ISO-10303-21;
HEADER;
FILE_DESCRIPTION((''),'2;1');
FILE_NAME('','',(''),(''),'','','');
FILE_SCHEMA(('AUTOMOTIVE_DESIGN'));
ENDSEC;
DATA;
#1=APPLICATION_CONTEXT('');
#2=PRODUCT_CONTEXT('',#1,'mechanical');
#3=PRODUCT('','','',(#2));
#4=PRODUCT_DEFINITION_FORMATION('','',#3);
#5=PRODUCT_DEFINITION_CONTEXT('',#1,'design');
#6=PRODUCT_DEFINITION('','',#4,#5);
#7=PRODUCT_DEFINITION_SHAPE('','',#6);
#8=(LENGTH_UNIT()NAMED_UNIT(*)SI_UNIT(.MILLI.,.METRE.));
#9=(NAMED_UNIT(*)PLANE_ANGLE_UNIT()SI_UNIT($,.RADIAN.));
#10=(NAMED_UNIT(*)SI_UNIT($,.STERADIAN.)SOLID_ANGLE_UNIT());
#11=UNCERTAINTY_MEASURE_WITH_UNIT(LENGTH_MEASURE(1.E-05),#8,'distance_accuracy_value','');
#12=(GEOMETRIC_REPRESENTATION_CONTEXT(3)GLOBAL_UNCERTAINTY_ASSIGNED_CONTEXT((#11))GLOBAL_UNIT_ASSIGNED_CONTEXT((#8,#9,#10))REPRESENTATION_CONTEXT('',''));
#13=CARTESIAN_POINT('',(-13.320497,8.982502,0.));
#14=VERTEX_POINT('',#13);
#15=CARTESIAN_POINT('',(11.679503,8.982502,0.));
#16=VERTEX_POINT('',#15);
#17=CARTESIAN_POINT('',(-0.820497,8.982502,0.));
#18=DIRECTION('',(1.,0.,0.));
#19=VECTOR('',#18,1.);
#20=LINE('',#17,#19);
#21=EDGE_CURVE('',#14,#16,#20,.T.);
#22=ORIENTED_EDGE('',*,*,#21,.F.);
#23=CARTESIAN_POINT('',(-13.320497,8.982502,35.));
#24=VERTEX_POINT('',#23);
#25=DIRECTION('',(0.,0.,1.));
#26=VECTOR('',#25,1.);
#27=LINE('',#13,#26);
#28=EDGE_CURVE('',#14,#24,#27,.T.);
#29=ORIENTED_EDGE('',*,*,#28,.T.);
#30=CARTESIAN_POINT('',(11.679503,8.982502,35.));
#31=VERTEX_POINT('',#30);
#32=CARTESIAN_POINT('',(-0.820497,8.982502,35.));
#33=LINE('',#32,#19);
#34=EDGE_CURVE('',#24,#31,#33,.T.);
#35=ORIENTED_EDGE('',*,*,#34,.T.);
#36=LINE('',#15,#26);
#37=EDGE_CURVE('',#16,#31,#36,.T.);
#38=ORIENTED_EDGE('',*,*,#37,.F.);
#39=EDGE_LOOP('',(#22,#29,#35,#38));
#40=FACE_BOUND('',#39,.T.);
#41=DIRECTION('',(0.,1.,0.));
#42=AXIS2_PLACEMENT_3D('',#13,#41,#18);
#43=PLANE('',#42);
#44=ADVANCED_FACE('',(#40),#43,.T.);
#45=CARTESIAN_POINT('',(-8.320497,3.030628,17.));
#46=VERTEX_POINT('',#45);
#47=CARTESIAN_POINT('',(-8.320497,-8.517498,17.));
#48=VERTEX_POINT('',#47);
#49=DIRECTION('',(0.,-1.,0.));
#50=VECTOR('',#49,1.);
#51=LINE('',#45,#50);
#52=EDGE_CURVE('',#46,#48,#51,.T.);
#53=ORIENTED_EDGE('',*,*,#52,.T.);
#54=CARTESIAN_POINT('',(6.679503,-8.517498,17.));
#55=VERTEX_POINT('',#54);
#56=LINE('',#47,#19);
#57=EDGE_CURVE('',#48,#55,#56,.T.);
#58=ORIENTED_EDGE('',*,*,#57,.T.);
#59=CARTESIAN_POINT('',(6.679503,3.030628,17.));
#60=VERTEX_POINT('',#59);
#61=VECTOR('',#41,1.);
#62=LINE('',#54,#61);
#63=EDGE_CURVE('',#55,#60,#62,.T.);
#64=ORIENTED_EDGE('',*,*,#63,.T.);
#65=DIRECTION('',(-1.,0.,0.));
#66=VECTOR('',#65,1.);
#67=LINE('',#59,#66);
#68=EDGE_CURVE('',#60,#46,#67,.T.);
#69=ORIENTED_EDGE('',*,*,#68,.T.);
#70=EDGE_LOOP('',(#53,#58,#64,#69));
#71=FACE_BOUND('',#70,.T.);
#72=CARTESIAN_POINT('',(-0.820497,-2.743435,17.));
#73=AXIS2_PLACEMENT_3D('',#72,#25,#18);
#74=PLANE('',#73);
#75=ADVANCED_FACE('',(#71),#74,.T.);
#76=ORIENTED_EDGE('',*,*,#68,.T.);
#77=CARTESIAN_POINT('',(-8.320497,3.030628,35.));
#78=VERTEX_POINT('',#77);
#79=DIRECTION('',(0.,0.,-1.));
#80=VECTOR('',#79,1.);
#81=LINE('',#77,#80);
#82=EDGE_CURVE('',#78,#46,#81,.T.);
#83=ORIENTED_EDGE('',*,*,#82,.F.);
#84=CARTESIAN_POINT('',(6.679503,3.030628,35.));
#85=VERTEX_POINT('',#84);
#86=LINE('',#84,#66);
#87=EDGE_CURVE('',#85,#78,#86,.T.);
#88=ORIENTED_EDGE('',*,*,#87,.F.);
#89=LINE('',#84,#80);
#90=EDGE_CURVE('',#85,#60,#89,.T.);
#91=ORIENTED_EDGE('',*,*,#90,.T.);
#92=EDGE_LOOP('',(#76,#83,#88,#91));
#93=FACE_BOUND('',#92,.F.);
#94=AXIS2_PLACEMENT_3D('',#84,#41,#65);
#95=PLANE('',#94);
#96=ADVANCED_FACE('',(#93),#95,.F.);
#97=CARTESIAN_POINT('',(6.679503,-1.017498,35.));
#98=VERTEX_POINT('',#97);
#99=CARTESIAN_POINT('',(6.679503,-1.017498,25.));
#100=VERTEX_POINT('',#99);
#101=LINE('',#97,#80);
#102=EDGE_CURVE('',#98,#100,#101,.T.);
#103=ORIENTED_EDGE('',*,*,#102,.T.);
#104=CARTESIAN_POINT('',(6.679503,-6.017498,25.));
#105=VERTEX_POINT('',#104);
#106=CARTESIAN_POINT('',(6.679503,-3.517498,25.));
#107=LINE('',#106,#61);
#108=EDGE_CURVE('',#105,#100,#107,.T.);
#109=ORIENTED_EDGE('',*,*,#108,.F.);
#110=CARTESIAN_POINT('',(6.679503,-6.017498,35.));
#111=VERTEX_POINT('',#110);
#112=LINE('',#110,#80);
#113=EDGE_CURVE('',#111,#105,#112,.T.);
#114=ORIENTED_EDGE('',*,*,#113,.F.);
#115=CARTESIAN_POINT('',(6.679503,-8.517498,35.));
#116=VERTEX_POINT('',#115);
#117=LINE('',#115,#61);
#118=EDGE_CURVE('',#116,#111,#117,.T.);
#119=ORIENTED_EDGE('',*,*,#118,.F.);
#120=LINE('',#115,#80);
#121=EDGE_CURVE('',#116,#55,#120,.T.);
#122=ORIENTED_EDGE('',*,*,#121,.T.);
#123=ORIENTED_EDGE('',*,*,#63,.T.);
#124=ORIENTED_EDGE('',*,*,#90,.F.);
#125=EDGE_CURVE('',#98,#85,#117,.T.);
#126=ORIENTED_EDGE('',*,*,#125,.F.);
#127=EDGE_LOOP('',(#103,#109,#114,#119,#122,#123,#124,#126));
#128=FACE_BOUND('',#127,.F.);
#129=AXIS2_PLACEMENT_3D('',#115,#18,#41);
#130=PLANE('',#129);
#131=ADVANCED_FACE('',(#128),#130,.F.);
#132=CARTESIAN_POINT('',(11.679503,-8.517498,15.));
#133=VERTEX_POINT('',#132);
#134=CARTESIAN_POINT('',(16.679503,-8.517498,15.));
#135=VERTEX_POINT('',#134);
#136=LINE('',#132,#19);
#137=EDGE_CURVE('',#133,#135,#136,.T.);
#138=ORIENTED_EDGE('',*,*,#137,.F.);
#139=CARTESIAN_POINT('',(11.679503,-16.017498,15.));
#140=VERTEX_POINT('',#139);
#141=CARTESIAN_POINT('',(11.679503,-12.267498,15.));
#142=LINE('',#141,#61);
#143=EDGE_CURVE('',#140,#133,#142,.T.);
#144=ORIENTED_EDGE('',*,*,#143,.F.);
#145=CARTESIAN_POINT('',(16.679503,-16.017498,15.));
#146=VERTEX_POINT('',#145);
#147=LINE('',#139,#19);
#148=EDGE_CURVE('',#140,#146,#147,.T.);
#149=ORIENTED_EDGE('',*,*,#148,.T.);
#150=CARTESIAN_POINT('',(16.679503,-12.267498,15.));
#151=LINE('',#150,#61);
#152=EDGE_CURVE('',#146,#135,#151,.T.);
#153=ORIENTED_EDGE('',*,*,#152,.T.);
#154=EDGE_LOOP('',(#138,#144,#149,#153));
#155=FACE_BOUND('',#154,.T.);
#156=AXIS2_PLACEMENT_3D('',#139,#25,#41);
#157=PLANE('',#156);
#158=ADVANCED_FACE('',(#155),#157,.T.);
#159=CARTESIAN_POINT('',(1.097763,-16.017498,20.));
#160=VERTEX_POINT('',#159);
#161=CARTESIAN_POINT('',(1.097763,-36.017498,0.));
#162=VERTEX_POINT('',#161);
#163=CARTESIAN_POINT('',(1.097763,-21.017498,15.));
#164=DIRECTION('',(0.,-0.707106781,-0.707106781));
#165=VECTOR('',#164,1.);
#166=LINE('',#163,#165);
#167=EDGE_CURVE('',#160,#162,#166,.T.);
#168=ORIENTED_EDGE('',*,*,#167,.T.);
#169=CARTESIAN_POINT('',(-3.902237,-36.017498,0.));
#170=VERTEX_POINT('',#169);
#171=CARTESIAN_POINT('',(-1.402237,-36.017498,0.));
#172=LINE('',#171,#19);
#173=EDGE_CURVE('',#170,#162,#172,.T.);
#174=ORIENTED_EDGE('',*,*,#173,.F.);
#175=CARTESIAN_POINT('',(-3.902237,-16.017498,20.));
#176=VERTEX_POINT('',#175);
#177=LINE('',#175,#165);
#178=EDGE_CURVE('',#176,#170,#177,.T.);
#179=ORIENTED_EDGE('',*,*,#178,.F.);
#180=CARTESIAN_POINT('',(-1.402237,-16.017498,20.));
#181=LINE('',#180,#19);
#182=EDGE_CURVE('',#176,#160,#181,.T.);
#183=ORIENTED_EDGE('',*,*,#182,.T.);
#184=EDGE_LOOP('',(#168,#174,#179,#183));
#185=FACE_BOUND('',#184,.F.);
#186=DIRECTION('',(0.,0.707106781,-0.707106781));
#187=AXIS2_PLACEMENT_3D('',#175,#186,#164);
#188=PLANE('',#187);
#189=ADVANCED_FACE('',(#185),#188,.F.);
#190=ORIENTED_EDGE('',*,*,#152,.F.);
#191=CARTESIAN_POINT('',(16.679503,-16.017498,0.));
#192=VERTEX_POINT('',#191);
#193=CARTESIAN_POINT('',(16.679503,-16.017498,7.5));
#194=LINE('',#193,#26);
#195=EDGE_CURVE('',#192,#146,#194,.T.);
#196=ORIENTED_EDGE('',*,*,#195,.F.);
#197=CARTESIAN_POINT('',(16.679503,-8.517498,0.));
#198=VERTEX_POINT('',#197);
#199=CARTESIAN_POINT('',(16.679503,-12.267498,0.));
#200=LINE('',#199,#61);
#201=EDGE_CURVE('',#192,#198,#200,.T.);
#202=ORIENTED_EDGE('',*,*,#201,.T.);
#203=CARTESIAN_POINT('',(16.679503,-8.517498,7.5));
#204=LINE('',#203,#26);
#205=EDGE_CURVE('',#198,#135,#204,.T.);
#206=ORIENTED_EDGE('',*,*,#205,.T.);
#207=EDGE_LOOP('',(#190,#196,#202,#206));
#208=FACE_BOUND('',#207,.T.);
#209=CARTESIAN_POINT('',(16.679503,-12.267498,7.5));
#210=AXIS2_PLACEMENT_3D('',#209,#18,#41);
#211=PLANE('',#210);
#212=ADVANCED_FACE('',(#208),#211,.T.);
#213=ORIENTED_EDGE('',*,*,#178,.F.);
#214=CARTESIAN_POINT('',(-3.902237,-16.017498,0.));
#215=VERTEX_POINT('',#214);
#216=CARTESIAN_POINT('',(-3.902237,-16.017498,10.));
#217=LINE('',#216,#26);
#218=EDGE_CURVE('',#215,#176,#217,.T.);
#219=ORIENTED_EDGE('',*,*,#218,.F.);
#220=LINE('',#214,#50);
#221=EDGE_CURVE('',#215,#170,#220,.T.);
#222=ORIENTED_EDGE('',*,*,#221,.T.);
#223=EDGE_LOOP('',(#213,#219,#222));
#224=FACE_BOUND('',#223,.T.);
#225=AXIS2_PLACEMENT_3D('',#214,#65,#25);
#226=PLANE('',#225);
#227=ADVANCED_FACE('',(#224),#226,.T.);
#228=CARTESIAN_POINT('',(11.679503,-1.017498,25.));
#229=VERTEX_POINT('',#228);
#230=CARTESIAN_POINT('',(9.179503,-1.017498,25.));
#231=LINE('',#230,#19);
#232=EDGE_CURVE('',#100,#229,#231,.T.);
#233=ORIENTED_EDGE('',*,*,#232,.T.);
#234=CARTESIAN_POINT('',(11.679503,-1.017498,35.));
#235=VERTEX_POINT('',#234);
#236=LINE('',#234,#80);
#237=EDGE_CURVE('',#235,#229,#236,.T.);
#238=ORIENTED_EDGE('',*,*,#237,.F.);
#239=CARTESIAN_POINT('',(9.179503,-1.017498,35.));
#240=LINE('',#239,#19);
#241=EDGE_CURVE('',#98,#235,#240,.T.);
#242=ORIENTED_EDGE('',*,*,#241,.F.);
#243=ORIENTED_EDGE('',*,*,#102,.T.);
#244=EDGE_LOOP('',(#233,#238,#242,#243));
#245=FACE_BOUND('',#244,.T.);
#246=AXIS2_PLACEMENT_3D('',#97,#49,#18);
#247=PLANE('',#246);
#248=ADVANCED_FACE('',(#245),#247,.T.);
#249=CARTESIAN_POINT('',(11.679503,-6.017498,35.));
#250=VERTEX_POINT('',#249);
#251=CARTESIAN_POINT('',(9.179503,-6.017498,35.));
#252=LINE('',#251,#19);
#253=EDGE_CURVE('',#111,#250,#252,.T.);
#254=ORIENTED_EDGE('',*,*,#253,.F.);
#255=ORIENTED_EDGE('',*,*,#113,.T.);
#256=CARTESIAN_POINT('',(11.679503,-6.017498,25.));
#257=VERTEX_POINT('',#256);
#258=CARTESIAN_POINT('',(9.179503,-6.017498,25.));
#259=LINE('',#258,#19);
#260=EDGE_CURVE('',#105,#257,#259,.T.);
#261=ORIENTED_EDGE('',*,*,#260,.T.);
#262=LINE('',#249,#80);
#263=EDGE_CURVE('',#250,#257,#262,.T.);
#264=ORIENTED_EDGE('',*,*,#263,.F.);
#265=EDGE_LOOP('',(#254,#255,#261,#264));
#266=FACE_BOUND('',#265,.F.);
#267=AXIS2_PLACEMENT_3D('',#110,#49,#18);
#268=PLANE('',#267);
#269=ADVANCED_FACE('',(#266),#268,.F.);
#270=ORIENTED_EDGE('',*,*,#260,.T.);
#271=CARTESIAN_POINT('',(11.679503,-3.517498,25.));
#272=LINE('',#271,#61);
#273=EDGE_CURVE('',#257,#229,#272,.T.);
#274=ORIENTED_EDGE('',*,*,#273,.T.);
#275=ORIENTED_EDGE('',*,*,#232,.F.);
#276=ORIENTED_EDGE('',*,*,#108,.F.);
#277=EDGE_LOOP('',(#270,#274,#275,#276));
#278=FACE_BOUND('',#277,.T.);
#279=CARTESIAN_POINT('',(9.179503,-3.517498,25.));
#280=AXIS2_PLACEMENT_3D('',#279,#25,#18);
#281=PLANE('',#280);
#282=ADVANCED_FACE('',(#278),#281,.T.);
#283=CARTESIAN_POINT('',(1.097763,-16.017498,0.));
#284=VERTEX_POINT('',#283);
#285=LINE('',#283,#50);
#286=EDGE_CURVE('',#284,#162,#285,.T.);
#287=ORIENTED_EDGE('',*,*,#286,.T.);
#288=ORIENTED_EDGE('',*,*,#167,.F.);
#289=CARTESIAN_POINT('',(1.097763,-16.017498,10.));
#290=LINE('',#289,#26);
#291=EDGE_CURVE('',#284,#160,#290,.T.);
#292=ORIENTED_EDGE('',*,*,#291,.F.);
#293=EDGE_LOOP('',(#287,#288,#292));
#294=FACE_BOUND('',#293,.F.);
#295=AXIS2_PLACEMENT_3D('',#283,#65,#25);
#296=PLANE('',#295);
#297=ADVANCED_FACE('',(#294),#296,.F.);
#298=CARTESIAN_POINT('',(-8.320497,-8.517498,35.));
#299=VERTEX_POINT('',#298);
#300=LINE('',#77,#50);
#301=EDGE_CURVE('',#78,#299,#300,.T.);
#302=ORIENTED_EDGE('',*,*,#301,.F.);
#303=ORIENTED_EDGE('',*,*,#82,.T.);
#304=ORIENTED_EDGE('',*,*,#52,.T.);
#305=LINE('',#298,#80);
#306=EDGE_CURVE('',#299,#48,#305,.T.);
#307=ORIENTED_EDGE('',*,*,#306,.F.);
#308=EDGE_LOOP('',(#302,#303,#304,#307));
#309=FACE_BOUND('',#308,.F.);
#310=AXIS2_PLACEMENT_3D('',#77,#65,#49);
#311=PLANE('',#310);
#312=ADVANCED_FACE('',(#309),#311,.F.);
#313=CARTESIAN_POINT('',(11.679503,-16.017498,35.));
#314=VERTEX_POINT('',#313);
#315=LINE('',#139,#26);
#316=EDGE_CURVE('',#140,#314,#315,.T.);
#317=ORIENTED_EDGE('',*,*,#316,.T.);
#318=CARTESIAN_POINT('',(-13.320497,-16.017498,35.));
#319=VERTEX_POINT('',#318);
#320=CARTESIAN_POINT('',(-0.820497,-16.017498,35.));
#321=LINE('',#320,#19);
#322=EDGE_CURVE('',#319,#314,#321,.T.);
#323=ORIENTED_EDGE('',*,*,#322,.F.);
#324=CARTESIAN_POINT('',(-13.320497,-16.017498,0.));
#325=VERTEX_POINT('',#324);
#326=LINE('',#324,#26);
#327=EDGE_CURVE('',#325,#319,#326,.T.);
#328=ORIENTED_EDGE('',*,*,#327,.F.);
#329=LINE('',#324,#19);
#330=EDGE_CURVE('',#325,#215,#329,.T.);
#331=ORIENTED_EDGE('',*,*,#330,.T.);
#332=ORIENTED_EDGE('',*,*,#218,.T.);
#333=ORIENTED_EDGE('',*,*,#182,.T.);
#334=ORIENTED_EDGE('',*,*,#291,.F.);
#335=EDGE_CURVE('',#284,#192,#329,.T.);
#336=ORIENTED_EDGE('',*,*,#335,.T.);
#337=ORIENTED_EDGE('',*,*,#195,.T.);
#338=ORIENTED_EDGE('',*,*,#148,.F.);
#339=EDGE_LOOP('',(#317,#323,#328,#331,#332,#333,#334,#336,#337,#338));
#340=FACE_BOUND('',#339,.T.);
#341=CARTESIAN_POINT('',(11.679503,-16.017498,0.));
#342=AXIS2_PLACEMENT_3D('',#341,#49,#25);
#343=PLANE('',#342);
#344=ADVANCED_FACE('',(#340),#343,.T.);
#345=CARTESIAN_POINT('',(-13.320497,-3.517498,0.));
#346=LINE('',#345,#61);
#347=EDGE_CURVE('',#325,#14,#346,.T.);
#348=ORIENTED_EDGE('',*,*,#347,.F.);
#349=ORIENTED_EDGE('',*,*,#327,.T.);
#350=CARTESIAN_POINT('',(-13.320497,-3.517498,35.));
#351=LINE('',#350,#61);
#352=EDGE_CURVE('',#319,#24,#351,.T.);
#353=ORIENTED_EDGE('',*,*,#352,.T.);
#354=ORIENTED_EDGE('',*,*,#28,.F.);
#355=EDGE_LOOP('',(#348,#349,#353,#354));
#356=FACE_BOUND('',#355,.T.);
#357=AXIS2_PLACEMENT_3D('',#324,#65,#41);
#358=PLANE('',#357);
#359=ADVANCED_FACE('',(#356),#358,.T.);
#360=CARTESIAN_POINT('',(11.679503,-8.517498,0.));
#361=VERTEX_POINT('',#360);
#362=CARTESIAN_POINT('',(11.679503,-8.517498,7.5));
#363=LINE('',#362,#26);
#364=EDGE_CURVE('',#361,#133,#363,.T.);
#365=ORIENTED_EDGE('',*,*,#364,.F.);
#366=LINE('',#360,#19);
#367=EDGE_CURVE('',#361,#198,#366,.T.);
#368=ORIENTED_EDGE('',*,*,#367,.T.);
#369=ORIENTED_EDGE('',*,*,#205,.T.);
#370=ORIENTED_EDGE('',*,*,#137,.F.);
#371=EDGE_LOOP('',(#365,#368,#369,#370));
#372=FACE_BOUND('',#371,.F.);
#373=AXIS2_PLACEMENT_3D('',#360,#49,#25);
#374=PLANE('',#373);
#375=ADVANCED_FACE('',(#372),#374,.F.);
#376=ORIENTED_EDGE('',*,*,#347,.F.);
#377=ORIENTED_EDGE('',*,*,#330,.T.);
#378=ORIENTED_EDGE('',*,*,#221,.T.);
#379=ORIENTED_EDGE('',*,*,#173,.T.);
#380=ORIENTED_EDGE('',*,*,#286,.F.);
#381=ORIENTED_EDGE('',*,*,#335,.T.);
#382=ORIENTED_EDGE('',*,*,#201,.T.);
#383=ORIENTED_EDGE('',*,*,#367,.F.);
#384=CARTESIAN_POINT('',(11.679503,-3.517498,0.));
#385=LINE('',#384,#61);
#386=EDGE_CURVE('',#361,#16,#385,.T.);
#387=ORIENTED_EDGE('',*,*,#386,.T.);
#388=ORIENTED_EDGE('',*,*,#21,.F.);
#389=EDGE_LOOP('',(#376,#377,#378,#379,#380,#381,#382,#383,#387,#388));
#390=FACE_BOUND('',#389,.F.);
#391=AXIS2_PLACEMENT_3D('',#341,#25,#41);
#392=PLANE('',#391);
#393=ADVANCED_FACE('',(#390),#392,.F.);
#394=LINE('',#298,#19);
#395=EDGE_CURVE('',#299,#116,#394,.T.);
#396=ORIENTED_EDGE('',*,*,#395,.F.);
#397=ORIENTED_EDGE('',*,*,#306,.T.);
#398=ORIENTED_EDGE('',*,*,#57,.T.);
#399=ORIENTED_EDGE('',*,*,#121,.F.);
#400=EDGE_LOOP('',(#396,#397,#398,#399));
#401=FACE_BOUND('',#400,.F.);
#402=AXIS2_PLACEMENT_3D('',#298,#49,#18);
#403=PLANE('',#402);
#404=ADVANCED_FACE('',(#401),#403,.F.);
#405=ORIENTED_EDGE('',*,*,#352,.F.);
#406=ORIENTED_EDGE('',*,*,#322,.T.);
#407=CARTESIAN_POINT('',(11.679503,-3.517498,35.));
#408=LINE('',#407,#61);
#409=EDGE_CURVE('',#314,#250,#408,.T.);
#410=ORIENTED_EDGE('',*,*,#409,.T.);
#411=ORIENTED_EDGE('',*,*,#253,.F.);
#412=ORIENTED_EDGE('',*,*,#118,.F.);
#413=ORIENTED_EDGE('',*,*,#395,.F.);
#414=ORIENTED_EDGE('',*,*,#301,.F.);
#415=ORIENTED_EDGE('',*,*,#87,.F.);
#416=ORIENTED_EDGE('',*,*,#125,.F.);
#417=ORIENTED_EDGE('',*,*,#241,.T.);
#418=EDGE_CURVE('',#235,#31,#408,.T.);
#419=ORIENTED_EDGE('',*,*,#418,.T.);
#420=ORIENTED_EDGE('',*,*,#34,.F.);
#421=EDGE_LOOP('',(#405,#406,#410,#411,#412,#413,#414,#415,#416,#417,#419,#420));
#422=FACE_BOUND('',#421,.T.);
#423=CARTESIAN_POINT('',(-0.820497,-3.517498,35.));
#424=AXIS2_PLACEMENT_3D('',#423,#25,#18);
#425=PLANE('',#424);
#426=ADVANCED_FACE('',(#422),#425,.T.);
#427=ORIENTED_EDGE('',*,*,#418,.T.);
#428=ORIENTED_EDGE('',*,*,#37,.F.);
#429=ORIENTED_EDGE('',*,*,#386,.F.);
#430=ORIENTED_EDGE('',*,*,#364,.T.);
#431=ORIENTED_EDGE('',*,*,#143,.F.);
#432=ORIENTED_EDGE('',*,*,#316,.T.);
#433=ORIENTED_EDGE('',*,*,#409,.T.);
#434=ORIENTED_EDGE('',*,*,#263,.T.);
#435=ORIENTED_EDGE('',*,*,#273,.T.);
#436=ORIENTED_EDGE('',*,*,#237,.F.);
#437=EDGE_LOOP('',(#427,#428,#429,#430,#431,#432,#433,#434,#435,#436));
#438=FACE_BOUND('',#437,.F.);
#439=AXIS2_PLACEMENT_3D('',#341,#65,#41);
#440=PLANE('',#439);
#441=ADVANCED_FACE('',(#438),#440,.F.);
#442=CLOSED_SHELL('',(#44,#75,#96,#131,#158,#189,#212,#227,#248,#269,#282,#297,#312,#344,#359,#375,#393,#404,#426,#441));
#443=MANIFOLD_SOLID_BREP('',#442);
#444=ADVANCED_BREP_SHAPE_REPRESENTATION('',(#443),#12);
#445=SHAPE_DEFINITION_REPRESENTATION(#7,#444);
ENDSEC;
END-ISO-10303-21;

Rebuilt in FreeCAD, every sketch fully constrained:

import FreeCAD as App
import Part
import Sketcher

V = App.Vector
Q = App.Units.Quantity


def add_polygon(sketch, points):
    """Adds a closed chain of lines whose ends are joined by coincident constraints."""
    first, n = sketch.GeometryCount, len(points)
    for a, b in zip(points, points[1:] + points[:1]):
        sketch.addGeometry(Part.LineSegment(App.Vector(*a, 0), App.Vector(*b, 0)), False)
    for i in range(n):
        sketch.addConstraint(Sketcher.Constraint("Coincident", first + i, 2, first + (i + 1) % n, 1))

doc = App.newDocument("Part")
body = doc.addObject("PartDesign::Body", "Body")

# Sketch on XY plane
sketch1 = body.newObject("Sketcher::SketchObject", "Sketch")
sketch1.AttachmentSupport = (doc.getObject("XY_Plane"), [""])
sketch1.MapMode = "FlatFace"
add_polygon(sketch1, [(-13, 9), (-13, -16), (12, -16), (12, 9)])  # lines 0-3
sketch1.addConstraint([
    Sketcher.Constraint("Vertical", 0),
    Sketcher.Constraint("Horizontal", 1),
    Sketcher.Constraint("Vertical", 2),
    Sketcher.Constraint("Horizontal", 3),
    Sketcher.Constraint("Equal", 3, 0),
    Sketcher.Constraint("DistanceX", 1, 1, 1, 2, Q("25 mm")),
    Sketcher.Constraint("DistanceY", 0, 2, -1, 1, Q("16.017498 mm")),
    Sketcher.Constraint("DistanceX", 0, 2, -1, 1, Q("13.320497 mm")),
])
pad1 = body.newObject("PartDesign::Pad", "Pad")
pad1.Profile = sketch1
pad1.Length = 35

# Sketch on YZ plane
sketch2 = body.newObject("Sketcher::SketchObject", "Sketch001")
sketch2.AttachmentSupport = (doc.getObject("YZ_Plane"), [""])
sketch2.MapMode = "FlatFace"
sketch2.AttachmentOffset = App.Placement(V(0, 0, 11.679503), App.Rotation())
add_polygon(sketch2, [(-16, 15), (-16, 0), (-9, 0), (-9, 15)])  # lines 0-3
sketch2.addConstraint([
    Sketcher.Constraint("Vertical", 0),
    Sketcher.Constraint("Horizontal", 1),
    Sketcher.Constraint("Vertical", 2),
    Sketcher.Constraint("Horizontal", 3),
    Sketcher.Constraint("PointOnObject", 0, 2, -1),
    Sketcher.Constraint("DistanceY", 0, 2, 0, 1, Q("15 mm")),
    Sketcher.Constraint("DistanceX", 1, 1, 1, 2, Q("7.5 mm")),
    Sketcher.Constraint("DistanceX", 0, 2, -1, 1, Q("16.017498 mm")),
])
pad2 = body.newObject("PartDesign::Pad", "Pad001")
pad2.Profile = sketch2
pad2.Length = 5

# Sketch on XY plane
sketch3 = body.newObject("Sketcher::SketchObject", "Sketch002")
sketch3.AttachmentSupport = (doc.getObject("XY_Plane"), [""])
sketch3.MapMode = "FlatFace"
sketch3.AttachmentOffset = App.Placement(V(0, 0, 35), App.Rotation())
add_polygon(sketch3, [(7, -1), (7, -6), (12, -6), (12, -1)])  # lines 0-3
sketch3.addConstraint([
    Sketcher.Constraint("Vertical", 0),
    Sketcher.Constraint("Horizontal", 1),
    Sketcher.Constraint("Vertical", 2),
    Sketcher.Constraint("Horizontal", 3),
    Sketcher.Constraint("Equal", 3, 0),
    Sketcher.Constraint("DistanceX", 1, 1, 1, 2, Q("5 mm")),
    Sketcher.Constraint("DistanceX", -1, 1, 0, 2, Q("6.679503 mm")),
    Sketcher.Constraint("DistanceY", 0, 2, -1, 1, Q("6.017498 mm")),
])
pocket1 = body.newObject("PartDesign::Pocket", "Pocket")
pocket1.Profile = sketch3
pocket1.Length = 10

# Sketch on XY plane
sketch4 = body.newObject("Sketcher::SketchObject", "Sketch003")
sketch4.AttachmentSupport = (doc.getObject("XY_Plane"), [""])
sketch4.MapMode = "FlatFace"
sketch4.AttachmentOffset = App.Placement(V(0, 0, 35), App.Rotation())
add_polygon(sketch4, [(7, 3), (-8, 3), (-8, -9), (7, -9)])  # lines 0-3
sketch4.addConstraint([
    Sketcher.Constraint("Horizontal", 0),
    Sketcher.Constraint("Vertical", 1),
    Sketcher.Constraint("Horizontal", 2),
    Sketcher.Constraint("Vertical", 3),
    Sketcher.Constraint("DistanceX", 0, 2, 0, 1, Q("15 mm")),
    Sketcher.Constraint("DistanceY", 1, 2, 1, 1, Q("11.548126 mm")),
    Sketcher.Constraint("DistanceY", -1, 1, 0, 2, Q("3.030628 mm")),
    Sketcher.Constraint("DistanceX", 0, 2, -1, 1, Q("8.320497 mm")),
])
pocket2 = body.newObject("PartDesign::Pocket", "Pocket001")
pocket2.Profile = sketch4
pocket2.Length = 18

# Sketch on XZ plane
sketch5 = body.newObject("Sketcher::SketchObject", "Sketch004")
sketch5.AttachmentSupport = (doc.getObject("XZ_Plane"), [""])
sketch5.MapMode = "FlatFace"
sketch5.AttachmentOffset = App.Placement(V(0, 0, 16.017498), App.Rotation())
add_polygon(sketch5, [(-4, 20), (-4, 0), (1, 0), (1, 20)])  # lines 0-3
sketch5.addConstraint([
    Sketcher.Constraint("Vertical", 0),
    Sketcher.Constraint("Horizontal", 1),
    Sketcher.Constraint("Vertical", 2),
    Sketcher.Constraint("Horizontal", 3),
    Sketcher.Constraint("PointOnObject", 0, 2, -1),
    Sketcher.Constraint("DistanceX", 1, 1, 1, 2, Q("5 mm")),
    Sketcher.Constraint("DistanceY", 0, 2, 0, 1, Q("20 mm")),
    Sketcher.Constraint("DistanceX", 0, 2, -1, 1, Q("3.902237 mm")),
])
pad3 = body.newObject("PartDesign::Pad", "Pad002")
pad3.Profile = sketch5
pad3.Length = 20

# Sketch on YZ plane
sketch6 = body.newObject("Sketcher::SketchObject", "Sketch005")
sketch6.AttachmentSupport = (doc.getObject("YZ_Plane"), [""])
sketch6.MapMode = "FlatFace"
sketch6.AttachmentOffset = App.Placement(V(0, 0, -3.902237), App.Rotation())
add_polygon(sketch6, [(-36, 20), (-16, 20), (-36, 0)])  # lines 0-2
sketch6.addConstraint([
    Sketcher.Constraint("Horizontal", 0),
    Sketcher.Constraint("Vertical", 2),
    Sketcher.Constraint("PointOnObject", 1, 2, -1),
    Sketcher.Constraint("Equal", 0, 2),
    Sketcher.Constraint("DistanceX", 0, 1, 0, 2, Q("20 mm")),
    Sketcher.Constraint("DistanceX", 0, 2, -1, 1, Q("16.017498 mm")),
])
pocket3 = body.newObject("PartDesign::Pocket", "Pocket002")
pocket3.Profile = sketch6
pocket3.Length = 29.5
pocket3.Reversed = True

doc.recompute()
